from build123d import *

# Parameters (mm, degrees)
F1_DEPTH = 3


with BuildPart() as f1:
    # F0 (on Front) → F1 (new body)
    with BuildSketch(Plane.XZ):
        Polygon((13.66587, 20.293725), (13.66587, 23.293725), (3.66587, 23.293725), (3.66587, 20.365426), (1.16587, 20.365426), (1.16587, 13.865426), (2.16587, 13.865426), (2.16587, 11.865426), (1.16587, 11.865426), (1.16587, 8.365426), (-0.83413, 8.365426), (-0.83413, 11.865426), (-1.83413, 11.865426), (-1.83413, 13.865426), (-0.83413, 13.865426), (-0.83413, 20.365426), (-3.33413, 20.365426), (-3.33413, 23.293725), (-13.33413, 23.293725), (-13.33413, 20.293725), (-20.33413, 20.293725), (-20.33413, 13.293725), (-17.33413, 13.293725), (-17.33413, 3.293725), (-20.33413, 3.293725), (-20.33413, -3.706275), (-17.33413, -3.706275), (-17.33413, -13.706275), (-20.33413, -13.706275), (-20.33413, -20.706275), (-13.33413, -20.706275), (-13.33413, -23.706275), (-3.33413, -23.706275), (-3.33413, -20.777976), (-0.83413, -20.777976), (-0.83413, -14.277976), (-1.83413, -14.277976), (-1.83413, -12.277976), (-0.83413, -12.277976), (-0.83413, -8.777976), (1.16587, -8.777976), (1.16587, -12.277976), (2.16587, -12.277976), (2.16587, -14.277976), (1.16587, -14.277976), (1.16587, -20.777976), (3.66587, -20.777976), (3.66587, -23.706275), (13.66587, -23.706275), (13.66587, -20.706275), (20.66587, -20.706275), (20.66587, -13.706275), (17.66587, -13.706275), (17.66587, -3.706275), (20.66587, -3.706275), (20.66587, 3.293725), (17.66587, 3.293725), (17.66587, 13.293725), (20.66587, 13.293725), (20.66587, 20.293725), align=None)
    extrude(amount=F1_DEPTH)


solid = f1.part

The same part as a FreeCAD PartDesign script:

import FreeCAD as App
import Part
import Sketcher
from FreeCAD import Vector
Q = App.Units.Quantity

doc = App.newDocument("Part")
body = doc.addObject("PartDesign::Body", "Body")

# Sketch on XZ plane
sketch1 = doc.addObject("Sketcher::SketchObject", "Sketch")
body.addObject(sketch1)
sketch1.AttachmentSupport = (doc.XZ_Plane, [""])
sketch1.MapMode = "FlatFace"
sketch1.addGeometry(Part.LineSegment(Vector(13.7, 20.3, 0), Vector(13.7, 23.3, 0)), False)
sketch1.addGeometry(Part.LineSegment(Vector(13.7, 23.3, 0), Vector(3.7, 23.3, 0)), False)
sketch1.addGeometry(Part.LineSegment(Vector(3.7, 23.3, 0), Vector(3.7, 20.4, 0)), False)
sketch1.addGeometry(Part.LineSegment(Vector(3.7, 20.4, 0), Vector(1.2, 20.4, 0)), False)
sketch1.addGeometry(Part.LineSegment(Vector(1.2, 20.4, 0), Vector(1.2, 13.9, 0)), False)
sketch1.addGeometry(Part.LineSegment(Vector(1.2, 13.9, 0), Vector(2.2, 13.9, 0)), False)
sketch1.addGeometry(Part.LineSegment(Vector(2.2, 13.9, 0), Vector(2.2, 11.9, 0)), False)
sketch1.addGeometry(Part.LineSegment(Vector(2.2, 11.9, 0), Vector(1.2, 11.9, 0)), False)
sketch1.addGeometry(Part.LineSegment(Vector(1.2, 11.9, 0), Vector(1.2, 8.4, 0)), False)
sketch1.addGeometry(Part.LineSegment(Vector(1.2, 8.4, 0), Vector(-0.8, 8.4, 0)), False)
sketch1.addGeometry(Part.LineSegment(Vector(-0.8, 8.4, 0), Vector(-0.8, 11.9, 0)), False)
sketch1.addGeometry(Part.LineSegment(Vector(-0.8, 11.9, 0), Vector(-1.8, 11.9, 0)), False)
sketch1.addGeometry(Part.LineSegment(Vector(-1.8, 11.9, 0), Vector(-1.8, 13.9, 0)), False)
sketch1.addGeometry(Part.LineSegment(Vector(-1.8, 13.9, 0), Vector(-0.8, 13.9, 0)), False)
sketch1.addGeometry(Part.LineSegment(Vector(-0.8, 13.9, 0), Vector(-0.8, 20.4, 0)), False)
sketch1.addGeometry(Part.LineSegment(Vector(-0.8, 20.4, 0), Vector(-3.3, 20.4, 0)), False)
sketch1.addGeometry(Part.LineSegment(Vector(-3.3, 20.4, 0), Vector(-3.3, 23.3, 0)), False)
sketch1.addGeometry(Part.LineSegment(Vector(-3.3, 23.3, 0), Vector(-13.3, 23.3, 0)), False)
sketch1.addGeometry(Part.LineSegment(Vector(-13.3, 23.3, 0), Vector(-13.3, 20.3, 0)), False)
sketch1.addGeometry(Part.LineSegment(Vector(-13.3, 20.3, 0), Vector(-20.3, 20.3, 0)), False)
sketch1.addGeometry(Part.LineSegment(Vector(-20.3, 20.3, 0), Vector(-20.3, 13.3, 0)), False)
sketch1.addGeometry(Part.LineSegment(Vector(-20.3, 13.3, 0), Vector(-17.3, 13.3, 0)), False)
sketch1.addGeometry(Part.LineSegment(Vector(-17.3, 13.3, 0), Vector(-17.3, 3.3, 0)), False)
sketch1.addGeometry(Part.LineSegment(Vector(-17.3, 3.3, 0), Vector(-20.3, 3.3, 0)), False)
sketch1.addGeometry(Part.LineSegment(Vector(-20.3, 3.3, 0), Vector(-20.3, -3.7, 0)), False)
sketch1.addGeometry(Part.LineSegment(Vector(-20.3, -3.7, 0), Vector(-17.3, -3.7, 0)), False)
sketch1.addGeometry(Part.LineSegment(Vector(-17.3, -3.7, 0), Vector(-17.3, -13.7, 0)), False)
sketch1.addGeometry(Part.LineSegment(Vector(-17.3, -13.7, 0), Vector(-20.3, -13.7, 0)), False)
sketch1.addGeometry(Part.LineSegment(Vector(-20.3, -13.7, 0), Vector(-20.3, -20.7, 0)), False)
sketch1.addGeometry(Part.LineSegment(Vector(-20.3, -20.7, 0), Vector(-13.3, -20.7, 0)), False)
sketch1.addGeometry(Part.LineSegment(Vector(-13.3, -20.7, 0), Vector(-13.3, -23.7, 0)), False)
sketch1.addGeometry(Part.LineSegment(Vector(-13.3, -23.7, 0), Vector(-3.3, -23.7, 0)), False)
sketch1.addGeometry(Part.LineSegment(Vector(-3.3, -23.7, 0), Vector(-3.3, -20.8, 0)), False)
sketch1.addGeometry(Part.LineSegment(Vector(-3.3, -20.8, 0), Vector(-0.8, -20.8, 0)), False)
sketch1.addGeometry(Part.LineSegment(Vector(-0.8, -20.8, 0), Vector(-0.8, -14.3, 0)), False)
sketch1.addGeometry(Part.LineSegment(Vector(-0.8, -14.3, 0), Vector(-1.8, -14.3, 0)), False)
sketch1.addGeometry(Part.LineSegment(Vector(-1.8, -14.3, 0), Vector(-1.8, -12.3, 0)), False)
sketch1.addGeometry(Part.LineSegment(Vector(-1.8, -12.3, 0), Vector(-0.8, -12.3, 0)), False)
sketch1.addGeometry(Part.LineSegment(Vector(-0.8, -12.3, 0), Vector(-0.8, -8.8, 0)), False)
sketch1.addGeometry(Part.LineSegment(Vector(-0.8, -8.8, 0), Vector(1.2, -8.8, 0)), False)
sketch1.addGeometry(Part.LineSegment(Vector(1.2, -8.8, 0), Vector(1.2, -12.3, 0)), False)
sketch1.addGeometry(Part.LineSegment(Vector(1.2, -12.3, 0), Vector(2.2, -12.3, 0)), False)
sketch1.addGeometry(Part.LineSegment(Vector(2.2, -12.3, 0), Vector(2.2, -14.3, 0)), False)
sketch1.addGeometry(Part.LineSegment(Vector(2.2, -14.3, 0), Vector(1.2, -14.3, 0)), False)
sketch1.addGeometry(Part.LineSegment(Vector(1.2, -14.3, 0), Vector(1.2, -20.8, 0)), False)
sketch1.addGeometry(Part.LineSegment(Vector(1.2, -20.8, 0), Vector(3.7, -20.8, 0)), False)
sketch1.addGeometry(Part.LineSegment(Vector(3.7, -20.8, 0), Vector(3.7, -23.7, 0)), False)
sketch1.addGeometry(Part.LineSegment(Vector(3.7, -23.7, 0), Vector(13.7, -23.7, 0)), False)
sketch1.addGeometry(Part.LineSegment(Vector(13.7, -23.7, 0), Vector(13.7, -20.7, 0)), False)
sketch1.addGeometry(Part.LineSegment(Vector(13.7, -20.7, 0), Vector(20.7, -20.7, 0)), False)
sketch1.addGeometry(Part.LineSegment(Vector(20.7, -20.7, 0), Vector(20.7, -13.7, 0)), False)
sketch1.addGeometry(Part.LineSegment(Vector(20.7, -13.7, 0), Vector(17.7, -13.7, 0)), False)
sketch1.addGeometry(Part.LineSegment(Vector(17.7, -13.7, 0), Vector(17.7, -3.7, 0)), False)
sketch1.addGeometry(Part.LineSegment(Vector(17.7, -3.7, 0), Vector(20.7, -3.7, 0)), False)
sketch1.addGeometry(Part.LineSegment(Vector(20.7, -3.7, 0), Vector(20.7, 3.3, 0)), False)
sketch1.addGeometry(Part.LineSegment(Vector(20.7, 3.3, 0), Vector(17.7, 3.3, 0)), False)
sketch1.addGeometry(Part.LineSegment(Vector(17.7, 3.3, 0), Vector(17.7, 13.3, 0)), False)
sketch1.addGeometry(Part.LineSegment(Vector(17.7, 13.3, 0), Vector(20.7, 13.3, 0)), False)
sketch1.addGeometry(Part.LineSegment(Vector(20.7, 13.3, 0), Vector(20.7, 20.3, 0)), False)
sketch1.addGeometry(Part.LineSegment(Vector(20.7, 20.3, 0), Vector(13.7, 20.3, 0)), False)
sketch1.addConstraint(Sketcher.Constraint("Coincident", 0, 2, 1, 1))
sketch1.addConstraint(Sketcher.Constraint("Coincident", 1, 2, 2, 1))
sketch1.addConstraint(Sketcher.Constraint("Coincident", 2, 2, 3, 1))
sketch1.addConstraint(Sketcher.Constraint("Coincident", 3, 2, 4, 1))
sketch1.addConstraint(Sketcher.Constraint("Coincident", 4, 2, 5, 1))
sketch1.addConstraint(Sketcher.Constraint("Coincident", 5, 2, 6, 1))
sketch1.addConstraint(Sketcher.Constraint("Coincident", 6, 2, 7, 1))
sketch1.addConstraint(Sketcher.Constraint("Coincident", 7, 2, 8, 1))
sketch1.addConstraint(Sketcher.Constraint("Coincident", 8, 2, 9, 1))
sketch1.addConstraint(Sketcher.Constraint("Coincident", 9, 2, 10, 1))
sketch1.addConstraint(Sketcher.Constraint("Coincident", 10, 2, 11, 1))
sketch1.addConstraint(Sketcher.Constraint("Coincident", 11, 2, 12, 1))
sketch1.addConstraint(Sketcher.Constraint("Coincident", 12, 2, 13, 1))
sketch1.addConstraint(Sketcher.Constraint("Coincident", 13, 2, 14, 1))
sketch1.addConstraint(Sketcher.Constraint("Coincident", 14, 2, 15, 1))
sketch1.addConstraint(Sketcher.Constraint("Coincident", 15, 2, 16, 1))
sketch1.addConstraint(Sketcher.Constraint("Coincident", 16, 2, 17, 1))
sketch1.addConstraint(Sketcher.Constraint("Coincident", 17, 2, 18, 1))
sketch1.addConstraint(Sketcher.Constraint("Coincident", 18, 2, 19, 1))
sketch1.addConstraint(Sketcher.Constraint("Coincident", 19, 2, 20, 1))
sketch1.addConstraint(Sketcher.Constraint("Coincident", 20, 2, 21, 1))
sketch1.addConstraint(Sketcher.Constraint("Coincident", 21, 2, 22, 1))
sketch1.addConstraint(Sketcher.Constraint("Coincident", 22, 2, 23, 1))
sketch1.addConstraint(Sketcher.Constraint("Coincident", 23, 2, 24, 1))
sketch1.addConstraint(Sketcher.Constraint("Coincident", 24, 2, 25, 1))
sketch1.addConstraint(Sketcher.Constraint("Coincident", 25, 2, 26, 1))
sketch1.addConstraint(Sketcher.Constraint("Coincident", 26, 2, 27, 1))
sketch1.addConstraint(Sketcher.Constraint("Coincident", 27, 2, 28, 1))
sketch1.addConstraint(Sketcher.Constraint("Coincident", 28, 2, 29, 1))
sketch1.addConstraint(Sketcher.Constraint("Coincident", 29, 2, 30, 1))
sketch1.addConstraint(Sketcher.Constraint("Coincident", 30, 2, 31, 1))
sketch1.addConstraint(Sketcher.Constraint("Coincident", 31, 2, 32, 1))
sketch1.addConstraint(Sketcher.Constraint("Coincident", 32, 2, 33, 1))
sketch1.addConstraint(Sketcher.Constraint("Coincident", 33, 2, 34, 1))
sketch1.addConstraint(Sketcher.Constraint("Coincident", 34, 2, 35, 1))
sketch1.addConstraint(Sketcher.Constraint("Coincident", 35, 2, 36, 1))
sketch1.addConstraint(Sketcher.Constraint("Coincident", 36, 2, 37, 1))
sketch1.addConstraint(Sketcher.Constraint("Coincident", 37, 2, 38, 1))
sketch1.addConstraint(Sketcher.Constraint("Coincident", 38, 2, 39, 1))
sketch1.addConstraint(Sketcher.Constraint("Coincident", 39, 2, 40, 1))
sketch1.addConstraint(Sketcher.Constraint("Coincident", 40, 2, 41, 1))
sketch1.addConstraint(Sketcher.Constraint("Coincident", 41, 2, 42, 1))
sketch1.addConstraint(Sketcher.Constraint("Coincident", 42, 2, 43, 1))
sketch1.addConstraint(Sketcher.Constraint("Coincident", 43, 2, 44, 1))
sketch1.addConstraint(Sketcher.Constraint("Coincident", 44, 2, 45, 1))
sketch1.addConstraint(Sketcher.Constraint("Coincident", 45, 2, 46, 1))
sketch1.addConstraint(Sketcher.Constraint("Coincident", 46, 2, 47, 1))
sketch1.addConstraint(Sketcher.Constraint("Coincident", 47, 2, 48, 1))
sketch1.addConstraint(Sketcher.Constraint("Coincident", 48, 2, 49, 1))
sketch1.addConstraint(Sketcher.Constraint("Coincident", 49, 2, 50, 1))
sketch1.addConstraint(Sketcher.Constraint("Coincident", 50, 2, 51, 1))
sketch1.addConstraint(Sketcher.Constraint("Coincident", 51, 2, 52, 1))
sketch1.addConstraint(Sketcher.Constraint("Coincident", 52, 2, 53, 1))
sketch1.addConstraint(Sketcher.Constraint("Coincident", 53, 2, 54, 1))
sketch1.addConstraint(Sketcher.Constraint("Coincident", 54, 2, 55, 1))
sketch1.addConstraint(Sketcher.Constraint("Coincident", 55, 2, 56, 1))
sketch1.addConstraint(Sketcher.Constraint("Coincident", 56, 2, 57, 1))
sketch1.addConstraint(Sketcher.Constraint("Coincident", 57, 2, 58, 1))
sketch1.addConstraint(Sketcher.Constraint("Coincident", 58, 2, 59, 1))
sketch1.addConstraint(Sketcher.Constraint("Coincident", 59, 2, 0, 1))
sketch1.addConstraint(Sketcher.Constraint("Vertical", 0))
sketch1.addConstraint(Sketcher.Constraint("Horizontal", 1))
sketch1.addConstraint(Sketcher.Constraint("Vertical", 2))
sketch1.addConstraint(Sketcher.Constraint("Horizontal", 3))
sketch1.addConstraint(Sketcher.Constraint("Vertical", 4))
sketch1.addConstraint(Sketcher.Constraint("Horizontal", 5))
sketch1.addConstraint(Sketcher.Constraint("Vertical", 6))
sketch1.addConstraint(Sketcher.Constraint("Horizontal", 7))
sketch1.addConstraint(Sketcher.Constraint("Vertical", 8))
sketch1.addConstraint(Sketcher.Constraint("Horizontal", 9))
sketch1.addConstraint(Sketcher.Constraint("Vertical", 10))
sketch1.addConstraint(Sketcher.Constraint("Horizontal", 11))
sketch1.addConstraint(Sketcher.Constraint("Vertical", 12))
sketch1.addConstraint(Sketcher.Constraint("Horizontal", 13))
sketch1.addConstraint(Sketcher.Constraint("Vertical", 14))
sketch1.addConstraint(Sketcher.Constraint("Horizontal", 15))
sketch1.addConstraint(Sketcher.Constraint("Vertical", 16))
sketch1.addConstraint(Sketcher.Constraint("Horizontal", 17))
sketch1.addConstraint(Sketcher.Constraint("Vertical", 18))
sketch1.addConstraint(Sketcher.Constraint("Horizontal", 19))
sketch1.addConstraint(Sketcher.Constraint("Vertical", 20))
sketch1.addConstraint(Sketcher.Constraint("Horizontal", 21))
sketch1.addConstraint(Sketcher.Constraint("Vertical", 22))
sketch1.addConstraint(Sketcher.Constraint("Horizontal", 23))
sketch1.addConstraint(Sketcher.Constraint("Vertical", 24))
sketch1.addConstraint(Sketcher.Constraint("Horizontal", 25))
sketch1.addConstraint(Sketcher.Constraint("Vertical", 26))
sketch1.addConstraint(Sketcher.Constraint("Horizontal", 27))
sketch1.addConstraint(Sketcher.Constraint("Vertical", 28))
sketch1.addConstraint(Sketcher.Constraint("Horizontal", 29))
sketch1.addConstraint(Sketcher.Constraint("Vertical", 30))
sketch1.addConstraint(Sketcher.Constraint("Horizontal", 31))
sketch1.addConstraint(Sketcher.Constraint("Vertical", 32))
sketch1.addConstraint(Sketcher.Constraint("Horizontal", 33))
sketch1.addConstraint(Sketcher.Constraint("Vertical", 34))
sketch1.addConstraint(Sketcher.Constraint("Horizontal", 35))
sketch1.addConstraint(Sketcher.Constraint("Vertical", 36))
sketch1.addConstraint(Sketcher.Constraint("Horizontal", 37))
sketch1.addConstraint(Sketcher.Constraint("Vertical", 38))
sketch1.addConstraint(Sketcher.Constraint("Horizontal", 39))
sketch1.addConstraint(Sketcher.Constraint("Vertical", 40))
sketch1.addConstraint(Sketcher.Constraint("Horizontal", 41))
sketch1.addConstraint(Sketcher.Constraint("Vertical", 42))
sketch1.addConstraint(Sketcher.Constraint("Horizontal", 43))
sketch1.addConstraint(Sketcher.Constraint("Vertical", 44))
sketch1.addConstraint(Sketcher.Constraint("Horizontal", 45))
sketch1.addConstraint(Sketcher.Constraint("Vertical", 46))
sketch1.addConstraint(Sketcher.Constraint("Horizontal", 47))
sketch1.addConstraint(Sketcher.Constraint("Vertical", 48))
sketch1.addConstraint(Sketcher.Constraint("Horizontal", 49))
sketch1.addConstraint(Sketcher.Constraint("Vertical", 50))
sketch1.addConstraint(Sketcher.Constraint("Horizontal", 51))
sketch1.addConstraint(Sketcher.Constraint("Vertical", 52))
sketch1.addConstraint(Sketcher.Constraint("Horizontal", 53))
sketch1.addConstraint(Sketcher.Constraint("Vertical", 54))
sketch1.addConstraint(Sketcher.Constraint("Horizontal", 55))
sketch1.addConstraint(Sketcher.Constraint("Vertical", 56))
sketch1.addConstraint(Sketcher.Constraint("Horizontal", 57))
sketch1.addConstraint(Sketcher.Constraint("Vertical", 58))
sketch1.addConstraint(Sketcher.Constraint("Horizontal", 59))
sketch1.addConstraint(Sketcher.Constraint("Horizontal", 7, 2, 10, 2))
sketch1.addConstraint(Sketcher.Constraint("Horizontal", 5, 2, 12, 2))
sketch1.addConstraint(Sketcher.Constraint("Horizontal", 3, 2, 14, 2))
sketch1.addConstraint(Sketcher.Constraint("Horizontal", 1, 2, 16, 2))
sketch1.addConstraint(Sketcher.Constraint("Horizontal", 37, 2, 40, 2))
sketch1.addConstraint(Sketcher.Constraint("Horizontal", 35, 2, 42, 2))
sketch1.addConstraint(Sketcher.Constraint("Horizontal", 33, 2, 44, 2))
sketch1.addConstraint(Sketcher.Constraint("Horizontal", 31, 2, 46, 2))
sketch1.addConstraint(Sketcher.Constraint("Horizontal", 29, 2, 48, 2))
sketch1.addConstraint(Sketcher.Constraint("Horizontal", 27, 2, 50, 2))
sketch1.addConstraint(Sketcher.Constraint("Horizontal", 25, 2, 52, 2))
sketch1.addConstraint(Sketcher.Constraint("Horizontal", 23, 2, 54, 2))
sketch1.addConstraint(Sketcher.Constraint("Horizontal", 21, 2, 56, 2))
sketch1.addConstraint(Sketcher.Constraint("Horizontal", 19, 2, 58, 2))
sketch1.addConstraint(Sketcher.Constraint("Vertical", 4, 2, 7, 2))
sketch1.addConstraint(Sketcher.Constraint("Vertical", 10, 2, 13, 2))
sketch1.addConstraint(Sketcher.Constraint("Vertical", 20, 2, 23, 2))
sketch1.addConstraint(Sketcher.Constraint("Vertical", 22, 2, 25, 2))
sketch1.addConstraint(Sketcher.Constraint("Vertical", 24, 2, 27, 2))
sketch1.addConstraint(Sketcher.Constraint("Vertical", 18, 2, 29, 2))
sketch1.addConstraint(Sketcher.Constraint("Vertical", 16, 2, 31, 2))
sketch1.addConstraint(Sketcher.Constraint("Vertical", 14, 2, 33, 2))
sketch1.addConstraint(Sketcher.Constraint("Vertical", 12, 2, 35, 2))
sketch1.addConstraint(Sketcher.Constraint("Vertical", 34, 2, 37, 2))
sketch1.addConstraint(Sketcher.Constraint("Vertical", 8, 2, 39, 2))
sketch1.addConstraint(Sketcher.Constraint("Vertical", 6, 2, 41, 2))
sketch1.addConstraint(Sketcher.Constraint("Vertical", 40, 2, 43, 2))
sketch1.addConstraint(Sketcher.Constraint("Vertical", 2, 2, 45, 2))
sketch1.addConstraint(Sketcher.Constraint("Vertical", 0, 2, 47, 2))
sketch1.addConstraint(Sketcher.Constraint("Vertical", 50, 2, 53, 2))
sketch1.addConstraint(Sketcher.Constraint("Vertical", 52, 2, 55, 2))
sketch1.addConstraint(Sketcher.Constraint("Vertical", 54, 2, 57, 2))
sketch1.addConstraint(Sketcher.Constraint("Equal", 7, 11))
sketch1.addConstraint(Sketcher.Constraint("Equal", 3, 15))
sketch1.addConstraint(Sketcher.Constraint("Equal", 1, 17))
sketch1.addConstraint(Sketcher.Constraint("Equal", 29, 49))
sketch1.addConstraint(Sketcher.Constraint("Equal", 27, 51))
sketch1.addConstraint(Sketcher.Constraint("Equal", 57, 0))
sketch1.addConstraint(Sketcher.Constraint("Equal", 39, 6))
sketch1.addConstraint(Sketcher.Constraint("Equal", 59, 20))
sketch1.addConstraint(Sketcher.Constraint("Equal", 47, 22))
sketch1.addConstraint(Sketcher.Constraint("Equal", 20, 24))
sketch1.addConstraint(Sketcher.Constraint("Equal", 22, 26))
sketch1.addConstraint(Sketcher.Constraint("Equal", 24, 28))
sketch1.addConstraint(Sketcher.Constraint("Equal", 18, 30))
sketch1.addConstraint(Sketcher.Constraint("Equal", 16, 32))
sketch1.addConstraint(Sketcher.Constraint("Equal", 14, 34))
sketch1.addConstraint(Sketcher.Constraint("Equal", 12, 36))
sketch1.addConstraint(Sketcher.Constraint("Equal", 10, 38))
sketch1.addConstraint(Sketcher.Constraint("DistanceX", 1, 2, 1, 1, Q("10 mm")))
sketch1.addConstraint(Sketcher.Constraint("DistanceX", 5, 1, 5, 2, Q("1 mm")))
sketch1.addConstraint(Sketcher.Constraint("DistanceX", 9, 2, 9, 1, Q("2 mm")))
sketch1.addConstraint(Sketcher.Constraint("DistanceX", 19, 2, 19, 1, Q("7 mm")))
sketch1.addConstraint(Sketcher.Constraint("DistanceX", 21, 1, 21, 2, Q("3 mm")))
sketch1.addConstraint(Sketcher.Constraint("DistanceX", 3, 2, 3, 1, Q("2.5 mm")))
sketch1.addConstraint(Sketcher.Constraint("DistanceY", 4, 2, 4, 1, Q("6.5 mm")))
sketch1.addConstraint(Sketcher.Constraint("DistanceY", 8, 2, 8, 1, Q("3.5 mm")))
sketch1.addConstraint(Sketcher.Constraint("DistanceY", 2, 2, 2, 1, Q("2.928299 mm")))
sketch1.addConstraint(Sketcher.Constraint("DistanceX", -1, 1, 0, 2, Q("13.66587 mm")))
sketch1.addConstraint(Sketcher.Constraint("DistanceY", -1, 1, 0, 2, Q("23.293725 mm")))
pad1 = doc.addObject("PartDesign::Pad", "Pad")
body.addObject(pad1)
pad1.Profile = sketch1
pad1.Length = 3

doc.recompute()
